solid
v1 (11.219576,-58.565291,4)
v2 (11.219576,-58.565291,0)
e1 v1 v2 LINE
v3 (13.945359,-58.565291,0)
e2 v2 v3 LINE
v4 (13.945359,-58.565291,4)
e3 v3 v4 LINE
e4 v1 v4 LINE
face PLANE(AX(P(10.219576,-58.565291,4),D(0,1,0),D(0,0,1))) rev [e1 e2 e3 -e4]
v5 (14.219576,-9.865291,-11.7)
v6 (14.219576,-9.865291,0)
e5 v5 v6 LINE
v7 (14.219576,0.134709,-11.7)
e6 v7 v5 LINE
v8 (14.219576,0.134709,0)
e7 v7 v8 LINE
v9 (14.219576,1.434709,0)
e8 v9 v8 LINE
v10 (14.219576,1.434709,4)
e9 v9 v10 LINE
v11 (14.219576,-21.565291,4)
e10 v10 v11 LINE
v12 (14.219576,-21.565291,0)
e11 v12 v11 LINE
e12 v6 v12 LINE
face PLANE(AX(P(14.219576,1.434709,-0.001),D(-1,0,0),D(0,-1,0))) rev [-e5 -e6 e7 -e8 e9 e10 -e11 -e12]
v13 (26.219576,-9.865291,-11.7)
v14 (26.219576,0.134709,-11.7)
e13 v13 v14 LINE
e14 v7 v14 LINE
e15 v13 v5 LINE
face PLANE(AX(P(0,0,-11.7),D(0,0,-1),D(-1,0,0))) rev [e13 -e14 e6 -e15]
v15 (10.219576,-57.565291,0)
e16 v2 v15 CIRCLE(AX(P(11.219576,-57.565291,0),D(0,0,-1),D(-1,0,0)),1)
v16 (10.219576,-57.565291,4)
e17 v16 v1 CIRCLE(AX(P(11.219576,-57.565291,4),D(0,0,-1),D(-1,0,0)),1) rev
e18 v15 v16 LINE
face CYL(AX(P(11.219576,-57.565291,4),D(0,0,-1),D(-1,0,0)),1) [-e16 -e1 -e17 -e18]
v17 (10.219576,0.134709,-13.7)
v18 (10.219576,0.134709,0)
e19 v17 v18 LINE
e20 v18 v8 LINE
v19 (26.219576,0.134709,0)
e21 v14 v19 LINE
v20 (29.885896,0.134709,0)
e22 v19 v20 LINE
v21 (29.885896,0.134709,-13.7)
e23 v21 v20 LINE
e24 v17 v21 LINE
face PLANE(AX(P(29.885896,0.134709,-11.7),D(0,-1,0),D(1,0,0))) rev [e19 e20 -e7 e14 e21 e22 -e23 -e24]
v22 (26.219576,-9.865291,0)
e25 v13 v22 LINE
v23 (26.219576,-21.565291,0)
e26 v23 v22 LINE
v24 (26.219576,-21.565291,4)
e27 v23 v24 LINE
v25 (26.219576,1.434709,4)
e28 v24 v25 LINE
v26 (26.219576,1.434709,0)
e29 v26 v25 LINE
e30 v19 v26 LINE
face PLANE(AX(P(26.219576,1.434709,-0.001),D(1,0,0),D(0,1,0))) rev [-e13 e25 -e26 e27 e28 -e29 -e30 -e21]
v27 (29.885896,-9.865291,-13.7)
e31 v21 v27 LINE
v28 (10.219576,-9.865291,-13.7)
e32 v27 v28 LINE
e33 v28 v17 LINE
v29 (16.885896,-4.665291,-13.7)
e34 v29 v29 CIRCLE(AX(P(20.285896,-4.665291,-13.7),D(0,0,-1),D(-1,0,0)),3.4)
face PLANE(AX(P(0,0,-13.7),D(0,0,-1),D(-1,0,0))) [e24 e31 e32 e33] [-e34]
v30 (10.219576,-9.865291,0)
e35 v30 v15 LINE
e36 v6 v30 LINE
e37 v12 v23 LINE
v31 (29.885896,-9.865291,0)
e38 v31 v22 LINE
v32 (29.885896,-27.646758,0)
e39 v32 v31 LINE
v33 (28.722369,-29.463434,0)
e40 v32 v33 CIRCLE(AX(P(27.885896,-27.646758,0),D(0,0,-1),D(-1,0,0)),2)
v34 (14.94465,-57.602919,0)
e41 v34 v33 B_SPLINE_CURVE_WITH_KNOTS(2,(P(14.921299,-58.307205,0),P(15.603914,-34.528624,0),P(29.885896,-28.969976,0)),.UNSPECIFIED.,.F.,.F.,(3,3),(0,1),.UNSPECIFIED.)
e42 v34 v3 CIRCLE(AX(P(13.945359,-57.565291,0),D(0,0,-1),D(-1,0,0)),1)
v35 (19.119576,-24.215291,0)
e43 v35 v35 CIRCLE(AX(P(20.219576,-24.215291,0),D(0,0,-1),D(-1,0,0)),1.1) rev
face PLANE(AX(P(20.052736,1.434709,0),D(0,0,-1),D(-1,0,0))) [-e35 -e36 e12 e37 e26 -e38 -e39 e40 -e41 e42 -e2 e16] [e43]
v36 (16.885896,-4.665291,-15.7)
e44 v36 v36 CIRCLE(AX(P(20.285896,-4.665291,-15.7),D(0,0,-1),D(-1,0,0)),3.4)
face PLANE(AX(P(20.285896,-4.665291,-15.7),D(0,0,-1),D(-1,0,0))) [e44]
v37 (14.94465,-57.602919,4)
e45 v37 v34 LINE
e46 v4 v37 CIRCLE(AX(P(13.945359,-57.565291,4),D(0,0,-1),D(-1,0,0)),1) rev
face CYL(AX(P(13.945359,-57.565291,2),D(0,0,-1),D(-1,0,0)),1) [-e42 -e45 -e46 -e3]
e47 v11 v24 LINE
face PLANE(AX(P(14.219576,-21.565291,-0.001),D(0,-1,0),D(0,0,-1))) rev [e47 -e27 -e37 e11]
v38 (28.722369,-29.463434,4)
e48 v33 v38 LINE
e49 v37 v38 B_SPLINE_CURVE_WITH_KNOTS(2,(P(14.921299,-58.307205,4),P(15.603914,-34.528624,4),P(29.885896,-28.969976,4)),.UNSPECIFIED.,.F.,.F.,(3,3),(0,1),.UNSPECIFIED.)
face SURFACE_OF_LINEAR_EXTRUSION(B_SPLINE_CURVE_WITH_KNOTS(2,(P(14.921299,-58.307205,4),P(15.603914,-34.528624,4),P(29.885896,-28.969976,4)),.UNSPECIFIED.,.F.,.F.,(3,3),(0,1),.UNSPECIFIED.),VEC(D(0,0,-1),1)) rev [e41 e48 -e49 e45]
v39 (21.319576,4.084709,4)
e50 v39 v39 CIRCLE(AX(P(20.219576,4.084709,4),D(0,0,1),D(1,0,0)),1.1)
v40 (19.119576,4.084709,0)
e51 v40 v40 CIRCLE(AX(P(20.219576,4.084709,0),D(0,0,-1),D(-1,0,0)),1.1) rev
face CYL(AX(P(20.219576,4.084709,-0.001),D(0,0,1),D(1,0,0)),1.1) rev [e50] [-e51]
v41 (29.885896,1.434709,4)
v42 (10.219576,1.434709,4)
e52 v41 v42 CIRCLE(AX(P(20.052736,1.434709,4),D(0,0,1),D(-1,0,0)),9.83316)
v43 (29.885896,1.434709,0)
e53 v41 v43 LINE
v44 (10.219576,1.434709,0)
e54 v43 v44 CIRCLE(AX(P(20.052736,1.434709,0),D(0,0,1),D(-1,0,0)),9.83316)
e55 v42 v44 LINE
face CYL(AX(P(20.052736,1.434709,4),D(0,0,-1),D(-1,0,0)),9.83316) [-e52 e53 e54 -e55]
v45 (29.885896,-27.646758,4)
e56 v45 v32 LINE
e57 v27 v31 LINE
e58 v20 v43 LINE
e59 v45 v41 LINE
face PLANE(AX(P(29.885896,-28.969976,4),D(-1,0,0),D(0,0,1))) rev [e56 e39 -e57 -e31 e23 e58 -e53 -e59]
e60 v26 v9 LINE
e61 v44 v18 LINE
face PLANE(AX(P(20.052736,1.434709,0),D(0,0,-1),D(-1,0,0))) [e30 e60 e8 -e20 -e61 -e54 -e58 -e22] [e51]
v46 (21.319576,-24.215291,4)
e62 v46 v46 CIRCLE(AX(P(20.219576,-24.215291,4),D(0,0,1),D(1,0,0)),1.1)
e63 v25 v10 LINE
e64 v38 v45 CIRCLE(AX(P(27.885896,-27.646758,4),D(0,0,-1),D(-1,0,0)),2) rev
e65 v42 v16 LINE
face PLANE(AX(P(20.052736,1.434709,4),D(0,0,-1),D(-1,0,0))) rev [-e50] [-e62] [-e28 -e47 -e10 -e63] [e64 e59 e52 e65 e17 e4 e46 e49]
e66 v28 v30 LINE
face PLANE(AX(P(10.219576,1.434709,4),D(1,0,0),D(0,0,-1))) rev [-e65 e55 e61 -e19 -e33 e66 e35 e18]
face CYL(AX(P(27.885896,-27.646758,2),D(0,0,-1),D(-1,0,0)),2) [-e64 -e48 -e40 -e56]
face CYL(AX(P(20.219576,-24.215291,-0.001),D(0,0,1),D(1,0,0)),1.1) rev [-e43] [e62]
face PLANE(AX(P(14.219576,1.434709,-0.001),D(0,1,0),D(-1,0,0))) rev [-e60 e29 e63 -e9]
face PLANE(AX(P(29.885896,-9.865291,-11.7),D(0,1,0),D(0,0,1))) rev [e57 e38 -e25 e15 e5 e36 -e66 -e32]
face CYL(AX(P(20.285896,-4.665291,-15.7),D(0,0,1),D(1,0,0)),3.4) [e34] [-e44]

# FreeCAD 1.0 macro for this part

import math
import FreeCAD as App
import Part
import Sketcher

V = App.Vector


def edges_at(feature, points):
    """Names of the edges that pass closest to the given points."""
    edges = feature.Shape.Edges
    near = lambda p: min(range(len(edges)), key=lambda i: edges[i].distToShape(Part.Vertex(*p))[0])
    return sorted({f"Edge{near(p) + 1}" for p in points})

doc = App.newDocument("Part")
params = doc.addObject("Spreadsheet::Sheet", "Params")
for row, (alias, value) in enumerate([
    ("sketch1_height", "60 mm"),
    ("pad1_length", "4 mm"),
    ("sketch2_diameter", "2.2 mm"),
    ("sketch3_diameter", "2.2 mm"),
    ("sketch4_width", "12 mm"),
    ("sketch4_height", "23 mm"),
    ("fillet_radius", "2 mm"),
    ("fillet2_radius", "1 mm"),
    ("fillet3_radius", "1 mm"),
    ("sketch5_width", "4 mm"),
    ("sketch5_height", "10 mm"),
    ("pad2_length", "11.7 mm"),
    ("sketch6_height", "10 mm"),
    ("pad3_length", "2 mm"),
    ("sketch7_diameter", "6.8 mm"),
    ("pad4_length", "2 mm"),
], start=1):
    params.set(f"A{row}", alias)
    params.set(f"B{row}", "=" + value)
    params.setAlias(f"B{row}", alias)

body = doc.addObject("PartDesign::Body", "Body")

sketch1 = body.newObject("Sketcher::SketchObject", "Sketch")
sketch1.AttachmentSupport = (doc.getObject("XY_Plane"), [""])
sketch1.MapMode = "FlatFace"
sketch1.addGeometry([
    Part.LineSegment(V(10.219576, 1.434709, 0), V(10.219576, -58.565291, 0)),
    Part.LineSegment(V(10.219576, -58.565291, 0), V(14.921299, -58.565291, 0)),
    Part.LineSegment(V(14.921299, -58.565291, 0), V(14.921299, -58.307205, 0)),
    Part.BSplineCurve([V(29.885896, -28.969976, 0), V(15.603914, -34.528624, 0), V(14.921299, -58.307205, 0)], [3, 3], [0, 1], False, 2, [1, 1, 1], False),
    Part.LineSegment(V(29.885896, -28.969976, 0), V(29.885896, 1.434709, 0)),
    Part.ArcOfCircle(Part.Circle(V(20.052736, 1.434709, 0), V(0, 0, 1), 9.83316), math.radians(0), math.radians(180)),
], False)
sketch1.addConstraint([
    Sketcher.Constraint("Block", 3),
    Sketcher.Constraint("Coincident", 0, 2, 1, 1),
    Sketcher.Constraint("Coincident", 1, 2, 2, 1),
    Sketcher.Constraint("Coincident", 2, 2, 3, 2),
    Sketcher.Constraint("Coincident", 3, 1, 4, 1),
    Sketcher.Constraint("Tangent", 4, 2, 5, 1),
    Sketcher.Constraint("Tangent", 5, 2, 0, 1),
    Sketcher.Constraint("Vertical", 0),
    Sketcher.Constraint("Horizontal", 1),
    Sketcher.Constraint("Vertical", 2),
    Sketcher.Constraint("Vertical", 4),
    Sketcher.Constraint("DistanceY", 0, 2, 0, 1, 60.0),
    Sketcher.Constraint("Radius", 5, 9.83316),
    Sketcher.Constraint("DistanceY", 2, 1, 2, 2, 0.258086),
])
sketch1.setExpression("Constraints[11]", "Params.sketch1_height")
pad1 = body.newObject("PartDesign::Pad", "Pad")
pad1.Profile = sketch1
pad1.setExpression("Length", "Params.pad1_length")

sketch2 = body.newObject("Sketcher::SketchObject", "Sketch001")
sketch2.AttachmentSupport = (doc.getObject("XY_Plane"), [""])
sketch2.MapMode = "FlatFace"
sketch2.AttachmentOffset = App.Placement(V(0, 0, 4), App.Rotation())
sketch2.addGeometry(Part.Circle(V(20.2, 4.1, 0), V(0, 0, 1), 1.1), False)
sketch2.addConstraint([
    Sketcher.Constraint("Diameter", 0, 2.2),
    Sketcher.Constraint("DistanceY", -1, 1, 0, 3, 4.084709),
    Sketcher.Constraint("DistanceX", -1, 1, 0, 3, 20.219576),
])
sketch2.setExpression("Constraints[0]", "Params.sketch2_diameter")
pocket1 = body.newObject("PartDesign::Pocket", "Pocket")
pocket1.Profile = sketch2
pocket1.Type = "UpToFirst"

sketch3 = body.newObject("Sketcher::SketchObject", "Sketch002")
sketch3.AttachmentSupport = (doc.getObject("XY_Plane"), [""])
sketch3.MapMode = "FlatFace"
sketch3.AttachmentOffset = App.Placement(V(0, 0, 4), App.Rotation())
sketch3.addGeometry(Part.Circle(V(20.2, -24.2, 0), V(0, 0, 1), 1.1), False)
sketch3.addConstraint([
    Sketcher.Constraint("Diameter", 0, 2.2),
    Sketcher.Constraint("DistanceY", 0, 3, -1, 1, 24.215291),
    Sketcher.Constraint("DistanceX", -1, 1, 0, 3, 20.219576),
])
sketch3.setExpression("Constraints[0]", "Params.sketch3_diameter")
pocket2 = body.newObject("PartDesign::Pocket", "Pocket001")
pocket2.Profile = sketch3
pocket2.Type = "UpToFirst"

sketch4 = body.newObject("Sketcher::SketchObject", "Sketch003")
sketch4.AttachmentSupport = (doc.getObject("XY_Plane"), [""])
sketch4.MapMode = "FlatFace"
sketch4.AttachmentOffset = App.Placement(V(0, 0, 4), App.Rotation())
sketch4.addGeometry([
    Part.LineSegment(V(14, 1, 0), V(14, -22, 0)),
    Part.LineSegment(V(14, -22, 0), V(26, -22, 0)),
    Part.LineSegment(V(26, -22, 0), V(26, 1, 0)),
    Part.LineSegment(V(26, 1, 0), V(14, 1, 0)),
], False)
sketch4.addConstraint([
    Sketcher.Constraint("Coincident", 0, 2, 1, 1),
    Sketcher.Constraint("Coincident", 1, 2, 2, 1),
    Sketcher.Constraint("Coincident", 2, 2, 3, 1),
    Sketcher.Constraint("Coincident", 3, 2, 0, 1),
    Sketcher.Constraint("Vertical", 0),
    Sketcher.Constraint("Horizontal", 1),
    Sketcher.Constraint("Vertical", 2),
    Sketcher.Constraint("Horizontal", 3),
    Sketcher.Constraint("DistanceX", 1, 1, 1, 2, 12.0),
    Sketcher.Constraint("DistanceY", 0, 2, 0, 1, 23.0),
    Sketcher.Constraint("DistanceY", 0, 2, -1, 1, 21.565291),
    Sketcher.Constraint("DistanceX", -1, 1, 0, 2, 14.219576),
])
sketch4.setExpression("Constraints[8]", "Params.sketch4_width")
sketch4.setExpression("Constraints[9]", "Params.sketch4_height")
pocket3 = body.newObject("PartDesign::Pocket", "Pocket002")
pocket3.Profile = sketch4
pocket3.Type = "UpToFirst"
doc.recompute()

fillet = body.newObject("PartDesign::Fillet", "Fillet")
fillet.Base = (pocket3, edges_at(pocket3, [(29.886, -28.97, 2)]))
fillet.setExpression("Radius", "Params.fillet_radius")
doc.recompute()

fillet2 = body.newObject("PartDesign::Fillet", "Fillet001")
fillet2.Base = (fillet, edges_at(fillet, [(14.921, -58.565, 2)]))
fillet2.setExpression("Radius", "Params.fillet2_radius")
doc.recompute()

fillet3 = body.newObject("PartDesign::Fillet", "Fillet002")
fillet3.Base = (fillet2, edges_at(fillet2, [(10.22, -58.565, 2)]))
fillet3.setExpression("Radius", "Params.fillet3_radius")

sketch5 = body.newObject("Sketcher::SketchObject", "Sketch004")
sketch5.AttachmentSupport = (doc.getObject("XY_Plane"), [""])
sketch5.MapMode = "FlatFace"
sketch5.addGeometry([
    Part.LineSegment(V(29.9, 0.1, 0), V(29.9, -9.9, 0)),
    Part.LineSegment(V(29.9, -9.9, 0), V(26.2, -9.9, 0)),
    Part.LineSegment(V(26.2, -9.9, 0), V(26.2, 0.1, 0)),
    Part.LineSegment(V(26.2, 0.1, 0), V(29.9, 0.1, 0)),
    Part.LineSegment(V(14.2, 0.1, 0), V(14.2, -9.9, 0)),
    Part.LineSegment(V(14.2, -9.9, 0), V(10.2, -9.9, 0)),
    Part.LineSegment(V(10.2, -9.9, 0), V(10.2, 0.1, 0)),
    Part.LineSegment(V(10.2, 0.1, 0), V(14.2, 0.1, 0)),
], False)
sketch5.addConstraint([
    Sketcher.Constraint("Coincident", 0, 2, 1, 1),
    Sketcher.Constraint("Coincident", 1, 2, 2, 1),
    Sketcher.Constraint("Coincident", 2, 2, 3, 1),
    Sketcher.Constraint("Coincident", 3, 2, 0, 1),
    Sketcher.Constraint("Coincident", 4, 2, 5, 1),
    Sketcher.Constraint("Coincident", 5, 2, 6, 1),
    Sketcher.Constraint("Coincident", 6, 2, 7, 1),
    Sketcher.Constraint("Coincident", 7, 2, 4, 1),
    Sketcher.Constraint("Vertical", 0),
    Sketcher.Constraint("Horizontal", 1),
    Sketcher.Constraint("Vertical", 2),
    Sketcher.Constraint("Horizontal", 3),
    Sketcher.Constraint("Vertical", 4),
    Sketcher.Constraint("Horizontal", 5),
    Sketcher.Constraint("Vertical", 6),
    Sketcher.Constraint("Horizontal", 7),
    Sketcher.Constraint("Horizontal", 1, 2, 4, 2),
    Sketcher.Constraint("Horizontal", 3, 2, 6, 2),
    Sketcher.Constraint("DistanceX", 5, 2, 5, 1, 4.0),
    Sketcher.Constraint("DistanceY", 0, 2, 0, 1, 10.0),
    Sketcher.Constraint("DistanceX", 4, 2, 1, 2, 12.0),
    Sketcher.Constraint("DistanceX", 1, 2, 1, 1, 3.66632),
    Sketcher.Constraint("DistanceY", 0, 2, -1, 1, 9.865291),
    Sketcher.Constraint("DistanceX", -1, 1, 0, 2, 29.885896),
])
sketch5.setExpression("Constraints[18]", "Params.sketch5_width")
sketch5.setExpression("Constraints[19]", "Params.sketch5_height")
pad2 = body.newObject("PartDesign::Pad", "Pad001")
pad2.Profile = sketch5
pad2.setExpression("Length", "Params.pad2_length")
pad2.Reversed = True

sketch6 = body.newObject("Sketcher::SketchObject", "Sketch005")
sketch6.AttachmentSupport = (doc.getObject("XY_Plane"), [""])
sketch6.MapMode = "FlatFace"
sketch6.AttachmentOffset = App.Placement(V(0, 0, -11.7), App.Rotation())
sketch6.addGeometry([
    Part.LineSegment(V(30, 0, 0), V(30, -10, 0)),
    Part.LineSegment(V(30, -10, 0), V(10, -10, 0)),
    Part.LineSegment(V(10, -10, 0), V(10, 0, 0)),
    Part.LineSegment(V(10, 0, 0), V(30, 0, 0)),
], False)
sketch6.addConstraint([
    Sketcher.Constraint("Coincident", 0, 2, 1, 1),
    Sketcher.Constraint("Coincident", 1, 2, 2, 1),
    Sketcher.Constraint("Coincident", 2, 2, 3, 1),
    Sketcher.Constraint("Coincident", 3, 2, 0, 1),
    Sketcher.Constraint("Vertical", 0),
    Sketcher.Constraint("Horizontal", 1),
    Sketcher.Constraint("Vertical", 2),
    Sketcher.Constraint("Horizontal", 3),
    Sketcher.Constraint("DistanceY", 0, 2, 0, 1, 10.0),
    Sketcher.Constraint("DistanceX", 1, 2, 1, 1, 19.66632),
    Sketcher.Constraint("DistanceY", 0, 2, -1, 1, 9.865291),
    Sketcher.Constraint("DistanceX", -1, 1, 0, 2, 29.885896),
])
sketch6.setExpression("Constraints[8]", "Params.sketch6_height")
pad3 = body.newObject("PartDesign::Pad", "Pad002")
pad3.Profile = sketch6
pad3.setExpression("Length", "Params.pad3_length")
pad3.Reversed = True

sketch7 = body.newObject("Sketcher::SketchObject", "Sketch006")
sketch7.AttachmentSupport = (doc.getObject("XY_Plane"), [""])
sketch7.MapMode = "FlatFace"
sketch7.AttachmentOffset = App.Placement(V(0, 0, -13.7), App.Rotation())
sketch7.addGeometry(Part.Circle(V(20.3, -4.7, 0), V(0, 0, 1), 3.4), False)
sketch7.addConstraint([
    Sketcher.Constraint("Diameter", 0, 6.8),
    Sketcher.Constraint("DistanceY", 0, 3, -1, 1, 4.665291),
    Sketcher.Constraint("DistanceX", -1, 1, 0, 3, 20.285896),
])
sketch7.setExpression("Constraints[0]", "Params.sketch7_diameter")
pad4 = body.newObject("PartDesign::Pad", "Pad003")
pad4.Profile = sketch7
pad4.setExpression("Length", "Params.pad4_length")
pad4.Reversed = True

doc.recompute()
